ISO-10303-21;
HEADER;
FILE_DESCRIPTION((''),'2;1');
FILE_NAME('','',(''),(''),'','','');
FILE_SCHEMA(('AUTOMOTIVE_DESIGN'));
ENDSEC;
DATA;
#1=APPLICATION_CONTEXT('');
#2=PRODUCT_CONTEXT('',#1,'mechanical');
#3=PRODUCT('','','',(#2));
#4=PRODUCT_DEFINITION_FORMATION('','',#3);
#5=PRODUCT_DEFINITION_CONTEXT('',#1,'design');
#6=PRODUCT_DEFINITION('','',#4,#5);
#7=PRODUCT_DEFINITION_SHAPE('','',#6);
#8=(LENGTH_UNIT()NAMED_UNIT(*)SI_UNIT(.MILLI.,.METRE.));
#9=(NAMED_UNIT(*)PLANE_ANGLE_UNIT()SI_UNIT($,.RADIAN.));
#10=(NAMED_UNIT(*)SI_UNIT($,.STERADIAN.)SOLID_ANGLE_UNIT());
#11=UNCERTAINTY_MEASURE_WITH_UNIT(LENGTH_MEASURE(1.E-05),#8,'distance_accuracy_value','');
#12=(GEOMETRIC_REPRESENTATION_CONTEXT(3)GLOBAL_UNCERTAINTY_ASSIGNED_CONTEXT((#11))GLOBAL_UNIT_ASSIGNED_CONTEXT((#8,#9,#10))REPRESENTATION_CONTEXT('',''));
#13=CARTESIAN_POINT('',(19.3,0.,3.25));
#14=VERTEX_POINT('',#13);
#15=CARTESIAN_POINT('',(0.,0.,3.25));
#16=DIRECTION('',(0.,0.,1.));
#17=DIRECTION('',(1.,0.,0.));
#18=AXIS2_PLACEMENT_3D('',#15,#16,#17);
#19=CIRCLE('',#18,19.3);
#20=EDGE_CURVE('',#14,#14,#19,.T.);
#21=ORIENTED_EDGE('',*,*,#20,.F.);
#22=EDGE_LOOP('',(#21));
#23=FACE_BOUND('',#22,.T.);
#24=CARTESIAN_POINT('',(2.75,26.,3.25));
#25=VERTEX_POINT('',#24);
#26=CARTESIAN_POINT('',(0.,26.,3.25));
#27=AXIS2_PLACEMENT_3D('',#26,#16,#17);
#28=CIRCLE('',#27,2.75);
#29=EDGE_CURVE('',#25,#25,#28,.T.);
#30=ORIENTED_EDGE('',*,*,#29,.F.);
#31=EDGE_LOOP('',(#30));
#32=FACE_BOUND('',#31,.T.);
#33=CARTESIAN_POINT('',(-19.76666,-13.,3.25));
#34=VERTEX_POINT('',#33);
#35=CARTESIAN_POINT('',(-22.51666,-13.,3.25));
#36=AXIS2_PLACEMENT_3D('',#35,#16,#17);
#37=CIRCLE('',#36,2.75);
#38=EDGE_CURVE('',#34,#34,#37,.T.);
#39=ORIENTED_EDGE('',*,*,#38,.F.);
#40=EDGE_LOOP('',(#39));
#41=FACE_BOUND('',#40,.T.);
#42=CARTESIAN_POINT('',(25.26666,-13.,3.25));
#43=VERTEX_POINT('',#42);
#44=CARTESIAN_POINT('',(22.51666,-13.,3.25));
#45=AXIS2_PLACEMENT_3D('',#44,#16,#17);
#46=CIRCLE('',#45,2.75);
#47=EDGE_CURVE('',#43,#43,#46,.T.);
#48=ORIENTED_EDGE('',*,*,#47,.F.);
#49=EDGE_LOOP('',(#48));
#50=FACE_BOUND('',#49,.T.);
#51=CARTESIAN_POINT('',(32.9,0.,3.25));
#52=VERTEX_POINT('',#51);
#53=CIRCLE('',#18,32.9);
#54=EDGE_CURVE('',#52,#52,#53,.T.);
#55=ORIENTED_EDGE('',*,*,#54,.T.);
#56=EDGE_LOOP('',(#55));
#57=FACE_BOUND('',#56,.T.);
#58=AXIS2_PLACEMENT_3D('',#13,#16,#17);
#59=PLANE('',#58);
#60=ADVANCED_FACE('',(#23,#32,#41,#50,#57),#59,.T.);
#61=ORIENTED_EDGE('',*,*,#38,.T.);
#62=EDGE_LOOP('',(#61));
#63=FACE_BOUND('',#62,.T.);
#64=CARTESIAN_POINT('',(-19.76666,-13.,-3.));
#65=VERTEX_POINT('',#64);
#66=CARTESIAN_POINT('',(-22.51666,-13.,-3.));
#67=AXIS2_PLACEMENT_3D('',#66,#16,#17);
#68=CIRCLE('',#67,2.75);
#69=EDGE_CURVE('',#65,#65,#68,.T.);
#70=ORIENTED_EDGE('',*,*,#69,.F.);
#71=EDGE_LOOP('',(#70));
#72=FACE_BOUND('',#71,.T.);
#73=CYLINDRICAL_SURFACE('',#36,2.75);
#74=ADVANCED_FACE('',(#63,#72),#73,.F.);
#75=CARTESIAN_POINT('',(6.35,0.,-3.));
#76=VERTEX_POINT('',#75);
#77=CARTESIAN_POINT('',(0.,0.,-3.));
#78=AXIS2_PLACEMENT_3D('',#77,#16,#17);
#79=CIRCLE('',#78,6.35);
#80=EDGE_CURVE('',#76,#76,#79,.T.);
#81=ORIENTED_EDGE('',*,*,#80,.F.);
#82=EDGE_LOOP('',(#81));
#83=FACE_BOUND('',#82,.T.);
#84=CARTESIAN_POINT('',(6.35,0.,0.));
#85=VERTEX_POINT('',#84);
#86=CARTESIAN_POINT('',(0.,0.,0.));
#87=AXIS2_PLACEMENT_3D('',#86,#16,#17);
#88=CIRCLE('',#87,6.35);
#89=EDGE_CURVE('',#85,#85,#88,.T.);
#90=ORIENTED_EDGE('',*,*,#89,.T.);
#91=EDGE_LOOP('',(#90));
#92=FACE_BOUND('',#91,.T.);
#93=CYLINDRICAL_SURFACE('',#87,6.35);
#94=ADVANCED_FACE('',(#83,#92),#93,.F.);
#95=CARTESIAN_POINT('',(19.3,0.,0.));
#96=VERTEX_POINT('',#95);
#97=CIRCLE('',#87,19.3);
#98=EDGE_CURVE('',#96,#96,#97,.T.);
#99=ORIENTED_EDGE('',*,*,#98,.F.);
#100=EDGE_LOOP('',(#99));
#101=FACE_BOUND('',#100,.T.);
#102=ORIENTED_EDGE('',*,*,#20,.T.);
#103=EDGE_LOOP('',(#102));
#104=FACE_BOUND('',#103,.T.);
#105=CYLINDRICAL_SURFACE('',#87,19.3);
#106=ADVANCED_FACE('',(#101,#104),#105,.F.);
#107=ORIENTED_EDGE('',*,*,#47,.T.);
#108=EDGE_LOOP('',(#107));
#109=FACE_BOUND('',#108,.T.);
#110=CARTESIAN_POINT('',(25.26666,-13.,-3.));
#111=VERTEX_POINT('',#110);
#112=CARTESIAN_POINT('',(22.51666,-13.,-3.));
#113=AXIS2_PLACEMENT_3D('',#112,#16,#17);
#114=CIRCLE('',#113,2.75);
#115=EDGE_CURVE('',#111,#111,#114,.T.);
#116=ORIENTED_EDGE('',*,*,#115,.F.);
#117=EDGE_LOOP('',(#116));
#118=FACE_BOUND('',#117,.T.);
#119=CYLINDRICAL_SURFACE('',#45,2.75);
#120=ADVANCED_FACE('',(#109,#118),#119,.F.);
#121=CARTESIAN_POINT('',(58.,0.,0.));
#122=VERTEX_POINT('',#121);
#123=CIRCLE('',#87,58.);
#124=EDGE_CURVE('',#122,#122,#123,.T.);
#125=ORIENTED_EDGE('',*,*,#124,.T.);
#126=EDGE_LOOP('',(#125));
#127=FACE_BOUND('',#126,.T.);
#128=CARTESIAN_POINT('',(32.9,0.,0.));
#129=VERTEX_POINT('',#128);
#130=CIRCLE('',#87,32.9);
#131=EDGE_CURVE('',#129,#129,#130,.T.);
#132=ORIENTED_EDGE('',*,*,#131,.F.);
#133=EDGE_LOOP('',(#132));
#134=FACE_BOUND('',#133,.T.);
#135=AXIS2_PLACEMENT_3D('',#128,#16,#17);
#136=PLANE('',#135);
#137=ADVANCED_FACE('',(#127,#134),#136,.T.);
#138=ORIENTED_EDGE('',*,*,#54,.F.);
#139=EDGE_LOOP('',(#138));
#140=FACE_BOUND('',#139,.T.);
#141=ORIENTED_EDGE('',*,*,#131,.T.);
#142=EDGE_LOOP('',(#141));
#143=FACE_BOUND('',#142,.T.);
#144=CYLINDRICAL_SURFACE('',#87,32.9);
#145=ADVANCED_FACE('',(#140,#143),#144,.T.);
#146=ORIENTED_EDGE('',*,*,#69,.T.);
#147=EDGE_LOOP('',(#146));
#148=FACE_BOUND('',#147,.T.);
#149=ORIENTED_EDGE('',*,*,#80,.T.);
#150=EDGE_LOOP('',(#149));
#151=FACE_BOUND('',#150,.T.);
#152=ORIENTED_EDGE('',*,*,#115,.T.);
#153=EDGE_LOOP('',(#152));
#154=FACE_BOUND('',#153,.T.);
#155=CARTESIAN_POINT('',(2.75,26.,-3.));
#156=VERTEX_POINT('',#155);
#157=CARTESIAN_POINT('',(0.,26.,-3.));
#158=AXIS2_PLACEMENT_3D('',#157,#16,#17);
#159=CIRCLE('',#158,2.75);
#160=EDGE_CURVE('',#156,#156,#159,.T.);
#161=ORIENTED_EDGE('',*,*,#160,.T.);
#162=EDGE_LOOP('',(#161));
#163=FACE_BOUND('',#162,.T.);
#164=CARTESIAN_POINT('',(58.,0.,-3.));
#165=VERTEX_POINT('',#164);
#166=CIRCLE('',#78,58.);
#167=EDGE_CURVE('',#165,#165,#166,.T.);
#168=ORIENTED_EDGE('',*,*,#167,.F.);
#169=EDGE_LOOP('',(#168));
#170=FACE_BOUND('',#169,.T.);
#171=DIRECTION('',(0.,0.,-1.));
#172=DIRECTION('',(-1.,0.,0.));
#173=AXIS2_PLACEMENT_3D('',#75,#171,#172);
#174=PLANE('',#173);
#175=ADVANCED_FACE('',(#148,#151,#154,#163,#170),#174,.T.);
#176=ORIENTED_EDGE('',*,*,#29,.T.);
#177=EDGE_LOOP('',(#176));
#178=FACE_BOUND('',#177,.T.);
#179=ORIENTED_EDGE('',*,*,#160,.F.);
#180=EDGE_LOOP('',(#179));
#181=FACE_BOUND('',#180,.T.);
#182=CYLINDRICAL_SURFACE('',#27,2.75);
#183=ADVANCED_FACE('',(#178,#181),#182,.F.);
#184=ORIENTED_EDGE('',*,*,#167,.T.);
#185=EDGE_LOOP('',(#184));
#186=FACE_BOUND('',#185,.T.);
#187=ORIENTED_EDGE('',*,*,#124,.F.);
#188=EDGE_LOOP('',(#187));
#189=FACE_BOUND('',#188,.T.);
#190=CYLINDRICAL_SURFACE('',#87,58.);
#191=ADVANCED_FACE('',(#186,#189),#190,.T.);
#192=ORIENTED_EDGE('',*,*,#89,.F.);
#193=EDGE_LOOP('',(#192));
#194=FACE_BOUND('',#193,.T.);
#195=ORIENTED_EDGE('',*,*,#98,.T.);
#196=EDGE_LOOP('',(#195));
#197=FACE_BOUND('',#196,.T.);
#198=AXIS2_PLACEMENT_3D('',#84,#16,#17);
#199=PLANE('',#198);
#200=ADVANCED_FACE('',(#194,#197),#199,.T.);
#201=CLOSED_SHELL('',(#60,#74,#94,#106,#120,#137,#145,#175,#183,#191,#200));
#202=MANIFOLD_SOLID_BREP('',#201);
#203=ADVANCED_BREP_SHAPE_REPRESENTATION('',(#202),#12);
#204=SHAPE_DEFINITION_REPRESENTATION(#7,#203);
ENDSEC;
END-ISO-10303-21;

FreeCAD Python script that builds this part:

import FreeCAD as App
import Part
import Sketcher

V = App.Vector
Q = App.Units.Quantity

doc = App.newDocument("Part")
params = doc.addObject("Spreadsheet::Sheet", "Params")
for row, (alias, value) in enumerate([
    ("sketch1_height", "3 mm"),
    ("sketch1_width", "13.6 mm"),
    ("sketch1_width2", "25.1 mm"),
    ("sketch1_width3", "12.95 mm"),
    ("sketch1_height2", "3.25 mm"),
    ("revolution_angle", "360 deg"),
    ("sketch2_diameter", "5.5 mm"),
    ("hole_diameter", "5.5 mm"),
], start=1):
    params.set(f"A{row}", alias)
    params.set(f"B{row}", "=" + value)
    params.setAlias(f"B{row}", alias)

body = doc.addObject("PartDesign::Body", "Body")

# Sketch on XZ plane
sketch1 = body.newObject("Sketcher::SketchObject", "Sketch")
sketch1.AttachmentSupport = (doc.getObject("XZ_Plane"), [""])
sketch1.MapMode = "FlatFace"
sketch1.addGeometry([
    Part.LineSegment(V(6.3, 0, 0), V(19.3, 0, 0)),  # 0
    Part.LineSegment(V(19.3, 0, 0), V(19.3, 3.2, 0)),  # 1
    Part.LineSegment(V(19.3, 3.2, 0), V(32.9, 3.2, 0)),  # 2
    Part.LineSegment(V(32.9, 3.2, 0), V(32.9, 0, 0)),  # 3
    Part.LineSegment(V(32.9, 0, 0), V(58, 0, 0)),  # 4
    Part.LineSegment(V(58, 0, 0), V(58, -3, 0)),  # 5
    Part.LineSegment(V(58, -3, 0), V(6.3, -3, 0)),  # 6
    Part.LineSegment(V(6.3, -3, 0), V(6.3, 0, 0)),  # 7
], False)
sketch1.addConstraint([
    Sketcher.Constraint("Coincident", 0, 2, 1, 1),
    Sketcher.Constraint("Coincident", 1, 2, 2, 1),
    Sketcher.Constraint("Coincident", 2, 2, 3, 1),
    Sketcher.Constraint("Coincident", 3, 2, 4, 1),
    Sketcher.Constraint("Coincident", 4, 2, 5, 1),
    Sketcher.Constraint("Coincident", 5, 2, 6, 1),
    Sketcher.Constraint("Coincident", 6, 2, 7, 1),
    Sketcher.Constraint("Coincident", 7, 2, 0, 1),
    Sketcher.Constraint("Horizontal", 0),
    Sketcher.Constraint("Vertical", 1),
    Sketcher.Constraint("Horizontal", 2),
    Sketcher.Constraint("Vertical", 3),
    Sketcher.Constraint("Horizontal", 4),
    Sketcher.Constraint("Vertical", 5),
    Sketcher.Constraint("Horizontal", 6),
    Sketcher.Constraint("Vertical", 7),
    Sketcher.Constraint("PointOnObject", 0, 2, -1),
    Sketcher.Constraint("PointOnObject", 3, 2, -1),
    Sketcher.Constraint("DistanceY", 5, 2, 5, 1, Q("3 mm")),
    Sketcher.Constraint("DistanceX", 2, 1, 2, 2, Q("13.6 mm")),
    Sketcher.Constraint("DistanceX", 4, 1, 4, 2, Q("25.1 mm")),
    Sketcher.Constraint("DistanceX", -1, 1, 4, 2, Q("58 mm")),
    Sketcher.Constraint("DistanceX", 0, 1, 0, 2, Q("12.95 mm")),
    Sketcher.Constraint("DistanceY", 1, 1, 1, 2, Q("3.25 mm")),
])
sketch1.setExpression("Constraints[18]", "Params.sketch1_height")
sketch1.setExpression("Constraints[19]", "Params.sketch1_width")
sketch1.setExpression("Constraints[20]", "Params.sketch1_width2")
sketch1.setExpression("Constraints[22]", "Params.sketch1_width3")
sketch1.setExpression("Constraints[23]", "Params.sketch1_height2")
revolution = body.newObject("PartDesign::Revolution", "Revolution")
revolution.Profile = sketch1
revolution.ReferenceAxis = (sketch1, ["V_Axis"])
revolution.setExpression("Angle", "Params.revolution_angle")

# Sketch on XY plane
sketch2 = body.newObject("Sketcher::SketchObject", "Sketch001")
sketch2.AttachmentSupport = (doc.getObject("XY_Plane"), [""])
sketch2.MapMode = "FlatFace"
sketch2.AttachmentOffset = App.Placement(V(0, 0, 3.25), App.Rotation())
sketch2.addGeometry([
    Part.Circle(V(0, 26, 0), V(0, 0, 1), 2.8),
    Part.Circle(V(-22.5, -13, 0), V(0, 0, 1), 2.8),
    Part.Circle(V(22.5, -13, 0), V(0, 0, 1), 2.8),
], False)
sketch2.addConstraint([
    Sketcher.Constraint("Equal", 0, 1),
    Sketcher.Constraint("Equal", 1, 2),
    Sketcher.Constraint("Symmetric", 1, 3, 2, 3, -2),
    Sketcher.Constraint("PointOnObject", 0, 3, -2),
    Sketcher.Constraint("Diameter", 0, Q("5.5 mm")),
    Sketcher.Constraint("DistanceY", -1, 1, 0, 3, Q("26 mm")),
    Sketcher.Constraint("DistanceY", 1, 3, -1, 1, Q("13 mm")),
    Sketcher.Constraint("DistanceX", 1, 3, -1, 1, Q("22.51666 mm")),
])
sketch2.setExpression("Constraints[4]", "Params.sketch2_diameter")
doc.recompute()
hole = body.newObject("PartDesign::Hole", "Hole")
hole.Profile = sketch2
hole.ThreadType = "None"
hole.setExpression("Diameter", "Params.hole_diameter")
hole.DepthType = "ThroughAll"

doc.recompute()
